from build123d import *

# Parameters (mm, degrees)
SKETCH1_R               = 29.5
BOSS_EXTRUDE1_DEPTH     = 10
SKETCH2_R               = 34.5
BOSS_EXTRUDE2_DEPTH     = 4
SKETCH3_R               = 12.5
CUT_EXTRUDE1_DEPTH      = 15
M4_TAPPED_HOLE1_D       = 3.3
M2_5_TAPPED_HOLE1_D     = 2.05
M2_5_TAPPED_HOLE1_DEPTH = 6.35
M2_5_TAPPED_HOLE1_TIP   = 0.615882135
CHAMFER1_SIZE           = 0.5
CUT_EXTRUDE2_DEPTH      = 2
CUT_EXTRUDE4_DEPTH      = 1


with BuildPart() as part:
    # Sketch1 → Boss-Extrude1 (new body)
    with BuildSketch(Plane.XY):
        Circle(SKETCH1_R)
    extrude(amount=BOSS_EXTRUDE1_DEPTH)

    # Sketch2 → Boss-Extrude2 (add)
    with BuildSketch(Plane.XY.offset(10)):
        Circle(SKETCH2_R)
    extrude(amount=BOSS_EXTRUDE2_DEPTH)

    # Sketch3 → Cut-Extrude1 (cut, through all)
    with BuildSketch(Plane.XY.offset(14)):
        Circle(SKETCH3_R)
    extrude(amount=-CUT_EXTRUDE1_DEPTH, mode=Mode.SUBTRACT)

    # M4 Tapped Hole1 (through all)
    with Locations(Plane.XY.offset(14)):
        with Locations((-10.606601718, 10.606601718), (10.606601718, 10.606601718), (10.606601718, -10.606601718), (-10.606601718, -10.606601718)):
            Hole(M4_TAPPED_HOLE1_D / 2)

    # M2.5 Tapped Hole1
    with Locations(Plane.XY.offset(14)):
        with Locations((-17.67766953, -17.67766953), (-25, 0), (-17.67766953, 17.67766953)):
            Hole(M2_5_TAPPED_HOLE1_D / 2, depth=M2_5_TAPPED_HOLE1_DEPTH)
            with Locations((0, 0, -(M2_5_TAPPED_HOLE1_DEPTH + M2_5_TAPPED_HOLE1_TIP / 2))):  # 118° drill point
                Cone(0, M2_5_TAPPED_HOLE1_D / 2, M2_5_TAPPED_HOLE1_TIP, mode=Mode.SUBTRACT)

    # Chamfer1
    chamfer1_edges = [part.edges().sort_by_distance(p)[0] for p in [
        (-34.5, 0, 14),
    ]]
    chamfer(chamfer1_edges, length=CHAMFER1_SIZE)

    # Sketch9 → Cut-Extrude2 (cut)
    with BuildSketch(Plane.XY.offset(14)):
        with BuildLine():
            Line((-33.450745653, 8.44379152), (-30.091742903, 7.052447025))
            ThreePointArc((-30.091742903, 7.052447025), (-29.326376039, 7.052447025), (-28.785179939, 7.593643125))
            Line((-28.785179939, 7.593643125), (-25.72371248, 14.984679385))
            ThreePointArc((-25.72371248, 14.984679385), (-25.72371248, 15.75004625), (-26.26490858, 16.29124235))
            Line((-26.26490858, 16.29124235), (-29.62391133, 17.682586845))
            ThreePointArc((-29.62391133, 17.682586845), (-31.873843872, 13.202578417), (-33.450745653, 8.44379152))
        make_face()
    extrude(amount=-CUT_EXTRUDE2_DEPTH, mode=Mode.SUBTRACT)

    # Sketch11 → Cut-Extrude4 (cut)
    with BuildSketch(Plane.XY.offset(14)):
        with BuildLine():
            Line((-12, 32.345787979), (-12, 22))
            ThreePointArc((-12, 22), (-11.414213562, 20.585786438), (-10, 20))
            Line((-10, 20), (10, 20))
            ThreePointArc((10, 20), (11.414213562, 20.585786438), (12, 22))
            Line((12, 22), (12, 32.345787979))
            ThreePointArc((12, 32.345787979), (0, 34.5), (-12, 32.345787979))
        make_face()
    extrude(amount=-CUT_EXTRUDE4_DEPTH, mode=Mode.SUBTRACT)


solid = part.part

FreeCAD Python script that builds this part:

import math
import FreeCAD as App
import Part
import Sketcher
from FreeCAD import Vector
Q = App.Units.Quantity


def edges_at(feature, points):
    """Names of the edges that pass closest to the given points."""
    edges = feature.Shape.Edges
    near = lambda p: min(range(len(edges)), key=lambda i: edges[i].distToShape(Part.Vertex(*p))[0])
    return sorted({f"Edge{near(p) + 1}" for p in points})

doc = App.newDocument("Part")
body = doc.addObject("PartDesign::Body", "Body")

# Sketch on XY plane
sketch1 = doc.addObject("Sketcher::SketchObject", "Sketch")
body.addObject(sketch1)
sketch1.AttachmentSupport = (doc.XY_Plane, [""])
sketch1.MapMode = "FlatFace"
sketch1.addGeometry(Part.Circle(Vector(0, 0, 0), Vector(0, 0, 1), 30), False)
sketch1.addConstraint(Sketcher.Constraint("Coincident", 0, 3, -1, 1))
sketch1.addConstraint(Sketcher.Constraint("Diameter", 0, 59.0))
pad1 = doc.addObject("PartDesign::Pad", "Pad")
body.addObject(pad1)
pad1.Profile = sketch1
pad1.Length = 10

# Sketch on XY plane
sketch2 = doc.addObject("Sketcher::SketchObject", "Sketch001")
body.addObject(sketch2)
sketch2.AttachmentSupport = (doc.XY_Plane, [""])
sketch2.MapMode = "FlatFace"
sketch2.AttachmentOffset = App.Placement(Vector(0, 0, 10), App.Rotation())
sketch2.addGeometry(Part.Circle(Vector(0, 0, 0), Vector(0, 0, 1), 34), False)
sketch2.addConstraint(Sketcher.Constraint("Coincident", 0, 3, -1, 1))
sketch2.addConstraint(Sketcher.Constraint("Diameter", 0, 69.0))
pad2 = doc.addObject("PartDesign::Pad", "Pad001")
body.addObject(pad2)
pad2.Profile = sketch2
pad2.Length = 4

# Sketch on XY plane
sketch3 = doc.addObject("Sketcher::SketchObject", "Sketch002")
body.addObject(sketch3)
sketch3.AttachmentSupport = (doc.XY_Plane, [""])
sketch3.MapMode = "FlatFace"
sketch3.AttachmentOffset = App.Placement(Vector(0, 0, 14), App.Rotation())
sketch3.addGeometry(Part.Circle(Vector(0, 0, 0), Vector(0, 0, 1), 12), False)
sketch3.addConstraint(Sketcher.Constraint("Coincident", 0, 3, -1, 1))
sketch3.addConstraint(Sketcher.Constraint("Diameter", 0, 25.0))
pocket1 = doc.addObject("PartDesign::Pocket", "Pocket")
body.addObject(pocket1)
pocket1.Profile = sketch3
pocket1.Type = "ThroughAll"

# Sketch on XY plane
sketch4 = doc.addObject("Sketcher::SketchObject", "Sketch003")
body.addObject(sketch4)
sketch4.AttachmentSupport = (doc.XY_Plane, [""])
sketch4.MapMode = "FlatFace"
sketch4.AttachmentOffset = App.Placement(Vector(0, 0, 14), App.Rotation())
sketch4.addGeometry(Part.Circle(Vector(-10.6, 10.6, 0), Vector(0, 0, 1), 1.6), False)
sketch4.addGeometry(Part.Circle(Vector(10.6, 10.6, 0), Vector(0, 0, 1), 1.6), False)
sketch4.addGeometry(Part.Circle(Vector(10.6, -10.6, 0), Vector(0, 0, 1), 1.6), False)
sketch4.addGeometry(Part.Circle(Vector(-10.6, -10.6, 0), Vector(0, 0, 1), 1.6), False)
sketch4.addConstraint(Sketcher.Constraint("Equal", 0, 1))
sketch4.addConstraint(Sketcher.Constraint("Equal", 1, 2))
sketch4.addConstraint(Sketcher.Constraint("Equal", 2, 3))
sketch4.addConstraint(Sketcher.Constraint("Symmetric", 0, 3, 2, 3, -1, 1))
sketch4.addConstraint(Sketcher.Constraint("Symmetric", 1, 3, 3, 3, -1, 1))
sketch4.addConstraint(Sketcher.Constraint("Symmetric", 0, 3, 1, 3, -2))
sketch4.addConstraint(Sketcher.Constraint("Diameter", 0, 3.3))
sketch4.addConstraint(Sketcher.Constraint("DistanceX", 0, 3, -1, 1, 10.606602))
sketch4.addConstraint(Sketcher.Constraint("DistanceY", -1, 1, 0, 3, 10.606602))
doc.recompute()
hole = doc.addObject("PartDesign::Hole", "Hole")
body.addObject(hole)
hole.Profile = sketch4
hole.ThreadType = "None"
hole.Diameter = 3.3
hole.DepthType = "ThroughAll"

# Sketch on XY plane
sketch5 = doc.addObject("Sketcher::SketchObject", "Sketch004")
body.addObject(sketch5)
sketch5.AttachmentSupport = (doc.XY_Plane, [""])
sketch5.MapMode = "FlatFace"
sketch5.AttachmentOffset = App.Placement(Vector(0, 0, 14), App.Rotation())
sketch5.addGeometry(Part.Circle(Vector(-17.7, -17.7, 0), Vector(0, 0, 1), 1), False)
sketch5.addGeometry(Part.Circle(Vector(-25, 0, 0), Vector(0, 0, 1), 1), False)
sketch5.addGeometry(Part.Circle(Vector(-17.7, 17.7, 0), Vector(0, 0, 1), 1), False)
sketch5.addConstraint(Sketcher.Constraint("Equal", 0, 1))
sketch5.addConstraint(Sketcher.Constraint("Equal", 1, 2))
sketch5.addConstraint(Sketcher.Constraint("Symmetric", 0, 3, 2, 3, -1))
sketch5.addConstraint(Sketcher.Constraint("PointOnObject", 1, 3, -1))
sketch5.addConstraint(Sketcher.Constraint("Diameter", 0, 2.05))
sketch5.addConstraint(Sketcher.Constraint("DistanceX", 1, 3, -1, 1, 25.0))
sketch5.addConstraint(Sketcher.Constraint("DistanceX", 0, 3, -1, 1, 17.67767))
sketch5.addConstraint(Sketcher.Constraint("DistanceY", 0, 3, -1, 1, 17.67767))
doc.recompute()
hole2 = doc.addObject("PartDesign::Hole", "Hole001")
body.addObject(hole2)
hole2.Profile = sketch5
hole2.ThreadType = "None"
hole2.Diameter = 2.05
hole2.DepthType = "Dimension"
hole2.Depth = 6.35
hole2.DrillPoint = "Angled"
hole2.DrillPointAngle = 118
doc.recompute()

chamfer = doc.addObject("PartDesign::Chamfer", "Chamfer")
body.addObject(chamfer)
chamfer.Base = (hole2, edges_at(hole2, [(-34.5, 0, 14)]))
chamfer.Size = 0.5

# Sketch on XY plane
sketch6 = doc.addObject("Sketcher::SketchObject", "Sketch005")
body.addObject(sketch6)
sketch6.AttachmentSupport = (doc.XY_Plane, [""])
sketch6.MapMode = "FlatFace"
sketch6.AttachmentOffset = App.Placement(Vector(0, 0, 14), App.Rotation())
sketch6.addGeometry(Part.LineSegment(Vector(-33.5, 8.4, 0), Vector(-30.1, 7.1, 0)), False)
sketch6.addGeometry(Part.ArcOfCircle(Part.Circle(Vector(-29.7, 8, 0), Vector(0, 0, 1), 1), math.radians(-112), math.radians(-22)), False)
sketch6.addGeometry(Part.LineSegment(Vector(-28.8, 7.6, 0), Vector(-25.7, 15, 0)), False)
sketch6.addGeometry(Part.ArcOfCircle(Part.Circle(Vector(-26.6, 15.4, 0), Vector(0, 0, 1), 1), math.radians(-23), math.radians(67)), False)
sketch6.addGeometry(Part.LineSegment(Vector(-26.3, 16.3, 0), Vector(-29.6, 17.7, 0)), False)
sketch6.addGeometry(Part.ArcOfCircle(Part.Circle(Vector(0, 0, 0), Vector(0, 0, 1), 34.5), math.radians(149.17), math.radians(165.83)), False)
sketch6.addConstraint(Sketcher.Constraint("Tangent", 0, 2, 1, 1))
sketch6.addConstraint(Sketcher.Constraint("Tangent", 1, 2, 2, 1))
sketch6.addConstraint(Sketcher.Constraint("Tangent", 2, 2, 3, 1))
sketch6.addConstraint(Sketcher.Constraint("Tangent", 3, 2, 4, 1))
sketch6.addConstraint(Sketcher.Constraint("Coincident", 4, 2, 5, 1))
sketch6.addConstraint(Sketcher.Constraint("Coincident", 5, 2, 0, 1))
sketch6.addConstraint(Sketcher.Constraint("Coincident", 5, 3, -1, 1))
sketch6.addConstraint(Sketcher.Constraint("Equal", 1, 3))
sketch6.addConstraint(Sketcher.Constraint("Perpendicular", 0, 2))
sketch6.addConstraint(Sketcher.Constraint("Perpendicular", 2, 4))
sketch6.addConstraint(Sketcher.Constraint("Equal", 0, 4))
sketch6.addConstraint(Sketcher.Constraint("Radius", 1, 1.0))
sketch6.addConstraint(Sketcher.Constraint("Radius", 5, 34.5))
sketch6.addConstraint(Sketcher.Constraint("Distance", 2, 8.0))
sketch6.addConstraint(Sketcher.Constraint("Angle", 0, Q("-22.5 deg")))
sketch6.addConstraint(Sketcher.Constraint("DistanceX", 4, 2, 2, 2, 3.900199))
pocket2 = doc.addObject("PartDesign::Pocket", "Pocket001")
body.addObject(pocket2)
pocket2.Profile = sketch6
pocket2.Length = 2

# Sketch on XY plane
sketch7 = doc.addObject("Sketcher::SketchObject", "Sketch006")
body.addObject(sketch7)
sketch7.AttachmentSupport = (doc.XY_Plane, [""])
sketch7.MapMode = "FlatFace"
sketch7.AttachmentOffset = App.Placement(Vector(0, 0, 14), App.Rotation())
sketch7.addGeometry(Part.LineSegment(Vector(-12, 32.3, 0), Vector(-12, 22, 0)), False)
sketch7.addGeometry(Part.ArcOfCircle(Part.Circle(Vector(-10, 22, 0), Vector(0, 0, 1), 2), math.radians(-180), math.radians(-90)), False)
sketch7.addGeometry(Part.LineSegment(Vector(-10, 20, 0), Vector(10, 20, 0)), False)
sketch7.addGeometry(Part.ArcOfCircle(Part.Circle(Vector(10, 22, 0), Vector(0, 0, 1), 2), math.radians(-90), math.radians(0)), False)
sketch7.addGeometry(Part.LineSegment(Vector(12, 22, 0), Vector(12, 32.3, 0)), False)
sketch7.addGeometry(Part.ArcOfCircle(Part.Circle(Vector(0, 0, 0), Vector(0, 0, 1), 34.5), math.radians(70), math.radians(110)), False)
sketch7.addConstraint(Sketcher.Constraint("Tangent", 0, 2, 1, 1))
sketch7.addConstraint(Sketcher.Constraint("Tangent", 1, 2, 2, 1))
sketch7.addConstraint(Sketcher.Constraint("Tangent", 2, 2, 3, 1))
sketch7.addConstraint(Sketcher.Constraint("Tangent", 3, 2, 4, 1))
sketch7.addConstraint(Sketcher.Constraint("Coincident", 4, 2, 5, 1))
sketch7.addConstraint(Sketcher.Constraint("Coincident", 5, 2, 0, 1))
sketch7.addConstraint(Sketcher.Constraint("Vertical", 0))
sketch7.addConstraint(Sketcher.Constraint("Horizontal", 2))
sketch7.addConstraint(Sketcher.Constraint("Vertical", 4))
sketch7.addConstraint(Sketcher.Constraint("Coincident", 5, 3, -1, 1))
sketch7.addConstraint(Sketcher.Constraint("Equal", 1, 3))
sketch7.addConstraint(Sketcher.Constraint("Horizontal", 4, 2, 5, 2))
sketch7.addConstraint(Sketcher.Constraint("Radius", 1, 2.0))
sketch7.addConstraint(Sketcher.Constraint("Radius", 5, 34.5))
sketch7.addConstraint(Sketcher.Constraint("DistanceX", 2, 1, 2, 2, 20.0))
sketch7.addConstraint(Sketcher.Constraint("DistanceY", -1, 1, 1, 3, 22.0))
pocket3 = doc.addObject("PartDesign::Pocket", "Pocket002")
body.addObject(pocket3)
pocket3.Profile = sketch7
pocket3.Length = 1

doc.recompute()
